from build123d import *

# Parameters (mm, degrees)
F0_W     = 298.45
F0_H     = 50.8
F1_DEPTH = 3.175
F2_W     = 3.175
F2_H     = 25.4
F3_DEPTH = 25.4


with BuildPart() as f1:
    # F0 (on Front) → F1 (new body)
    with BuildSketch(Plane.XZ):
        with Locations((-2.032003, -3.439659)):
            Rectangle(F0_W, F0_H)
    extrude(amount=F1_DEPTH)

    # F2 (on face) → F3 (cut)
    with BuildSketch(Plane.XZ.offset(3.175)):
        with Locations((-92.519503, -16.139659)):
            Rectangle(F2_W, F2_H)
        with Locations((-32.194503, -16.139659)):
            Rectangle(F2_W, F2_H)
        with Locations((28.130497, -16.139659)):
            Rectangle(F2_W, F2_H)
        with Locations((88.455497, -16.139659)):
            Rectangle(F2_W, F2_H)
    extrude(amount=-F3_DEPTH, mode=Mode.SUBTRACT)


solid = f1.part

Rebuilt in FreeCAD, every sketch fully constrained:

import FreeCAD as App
import Part
import Sketcher

V = App.Vector
Q = App.Units.Quantity

doc = App.newDocument("Part")
params = doc.addObject("Spreadsheet::Sheet", "Params")
for row, (alias, value) in enumerate([
    ("sketch1_height", "2 in"),
    ("sketch1_width", "11.75 in"),
    ("pad1_length", "0.125 in"),
    ("sketch2_height", "1 in"),
    ("sketch2_width", "0.125 in"),
    ("pocket1_length", "1 in"),
], start=1):
    params.set(f"A{row}", alias)
    params.set(f"B{row}", "=" + value)
    params.setAlias(f"B{row}", alias)

body = doc.addObject("PartDesign::Body", "Body")

sketch1 = doc.addObject("Sketcher::SketchObject", "Sketch")
body.addObject(sketch1)
sketch1.AttachmentSupport = (doc.XZ_Plane, [""])
sketch1.MapMode = "FlatFace"
sketch1.addGeometry([
    Part.LineSegment(V(-151, 22, 0), V(-151, -29, 0)),
    Part.LineSegment(V(-151, -29, 0), V(147, -29, 0)),
    Part.LineSegment(V(147, -29, 0), V(147, 22, 0)),
    Part.LineSegment(V(147, 22, 0), V(-151, 22, 0)),
], False)
sketch1.addConstraint([
    Sketcher.Constraint("Coincident", 0, 2, 1, 1),
    Sketcher.Constraint("Coincident", 1, 2, 2, 1),
    Sketcher.Constraint("Coincident", 2, 2, 3, 1),
    Sketcher.Constraint("Coincident", 3, 2, 0, 1),
    Sketcher.Constraint("Vertical", 0),
    Sketcher.Constraint("Horizontal", 1),
    Sketcher.Constraint("Vertical", 2),
    Sketcher.Constraint("Horizontal", 3),
    Sketcher.Constraint("DistanceY", 0, 2, 0, 1, Q("2 in")),
    Sketcher.Constraint("DistanceX", 1, 1, 1, 2, Q("11.75 in")),
    Sketcher.Constraint("DistanceX", 0, 2, -1, 1, Q("5.9550001 in")),
    Sketcher.Constraint("DistanceY", 0, 2, -1, 1, Q("28.839659 mm")),
])
sketch1.setExpression("Constraints[8]", "Params.sketch1_height")
sketch1.setExpression("Constraints[9]", "Params.sketch1_width")
pad1 = doc.addObject("PartDesign::Pad", "Pad")
body.addObject(pad1)
pad1.Profile = sketch1
pad1.setExpression("Length", "Params.pad1_length")

sketch2 = doc.addObject("Sketcher::SketchObject", "Sketch001")
body.addObject(sketch2)
sketch2.AttachmentSupport = (doc.XZ_Plane, [""])
sketch2.MapMode = "FlatFace"
sketch2.AttachmentOffset = App.Placement(V(0, 0, 0.125 * 25.4), App.Rotation())
sketch2.addGeometry([
    Part.LineSegment(V(-94.1, -3.4, 0), V(-94.1, -28.8, 0)),
    Part.LineSegment(V(-94.1, -28.8, 0), V(-90.9, -28.8, 0)),
    Part.LineSegment(V(-90.9, -28.8, 0), V(-90.9, -3.4, 0)),
    Part.LineSegment(V(-90.9, -3.4, 0), V(-94.1, -3.4, 0)),
    Part.LineSegment(V(-33.8, -3.4, 0), V(-33.8, -28.8, 0)),
    Part.LineSegment(V(-33.8, -28.8, 0), V(-30.6, -28.8, 0)),
    Part.LineSegment(V(-30.6, -28.8, 0), V(-30.6, -3.4, 0)),
    Part.LineSegment(V(-30.6, -3.4, 0), V(-33.8, -3.4, 0)),
    Part.LineSegment(V(26.5, -3.4, 0), V(26.5, -28.8, 0)),
    Part.LineSegment(V(26.5, -28.8, 0), V(29.7, -28.8, 0)),
    Part.LineSegment(V(29.7, -28.8, 0), V(29.7, -3.4, 0)),
    Part.LineSegment(V(29.7, -3.4, 0), V(26.5, -3.4, 0)),
    Part.LineSegment(V(86.9, -3.4, 0), V(86.9, -28.8, 0)),
    Part.LineSegment(V(86.9, -28.8, 0), V(90, -28.8, 0)),
    Part.LineSegment(V(90, -28.8, 0), V(90, -3.4, 0)),
    Part.LineSegment(V(90, -3.4, 0), V(86.9, -3.4, 0)),
], False)
sketch2.addConstraint([
    Sketcher.Constraint("Coincident", 0, 2, 1, 1),
    Sketcher.Constraint("Coincident", 1, 2, 2, 1),
    Sketcher.Constraint("Coincident", 2, 2, 3, 1),
    Sketcher.Constraint("Coincident", 3, 2, 0, 1),
    Sketcher.Constraint("Coincident", 4, 2, 5, 1),
    Sketcher.Constraint("Coincident", 5, 2, 6, 1),
    Sketcher.Constraint("Coincident", 6, 2, 7, 1),
    Sketcher.Constraint("Coincident", 7, 2, 4, 1),
    Sketcher.Constraint("Coincident", 8, 2, 9, 1),
    Sketcher.Constraint("Coincident", 9, 2, 10, 1),
    Sketcher.Constraint("Coincident", 10, 2, 11, 1),
    Sketcher.Constraint("Coincident", 11, 2, 8, 1),
    Sketcher.Constraint("Coincident", 12, 2, 13, 1),
    Sketcher.Constraint("Coincident", 13, 2, 14, 1),
    Sketcher.Constraint("Coincident", 14, 2, 15, 1),
    Sketcher.Constraint("Coincident", 15, 2, 12, 1),
    Sketcher.Constraint("Vertical", 0),
    Sketcher.Constraint("Horizontal", 1),
    Sketcher.Constraint("Vertical", 2),
    Sketcher.Constraint("Horizontal", 3),
    Sketcher.Constraint("Vertical", 4),
    Sketcher.Constraint("Horizontal", 5),
    Sketcher.Constraint("Vertical", 6),
    Sketcher.Constraint("Horizontal", 7),
    Sketcher.Constraint("Vertical", 8),
    Sketcher.Constraint("Horizontal", 9),
    Sketcher.Constraint("Vertical", 10),
    Sketcher.Constraint("Horizontal", 11),
    Sketcher.Constraint("Vertical", 12),
    Sketcher.Constraint("Horizontal", 13),
    Sketcher.Constraint("Vertical", 14),
    Sketcher.Constraint("Horizontal", 15),
    Sketcher.Constraint("Horizontal", 1, 2, 4, 2),
    Sketcher.Constraint("Horizontal", 3, 2, 6, 2),
    Sketcher.Constraint("Horizontal", 5, 2, 8, 2),
    Sketcher.Constraint("Horizontal", 7, 2, 10, 2),
    Sketcher.Constraint("Horizontal", 9, 2, 12, 2),
    Sketcher.Constraint("Horizontal", 11, 2, 14, 2),
    Sketcher.Constraint("Equal", 3, 5),
    Sketcher.Constraint("Equal", 7, 9),
    Sketcher.Constraint("Equal", 11, 13),
    Sketcher.Constraint("DistanceY", 0, 2, 0, 1, Q("1 in")),
    Sketcher.Constraint("DistanceX", 0, 2, 5, 2, Q("2.5 in")),
    Sketcher.Constraint("DistanceX", 4, 2, 9, 2, Q("2.5 in")),
    Sketcher.Constraint("DistanceX", 8, 2, 13, 2, Q("2.5 in")),
    Sketcher.Constraint("DistanceX", 1, 1, 1, 2, Q("0.125 in")),
    Sketcher.Constraint("DistanceX", 1, 2, -1, 1, Q("3.5800001 in")),
    Sketcher.Constraint("DistanceY", 0, 2, -1, 1, Q("28.839659 mm")),
])
sketch2.setExpression("Constraints[41]", "Params.sketch2_height")
sketch2.setExpression("Constraints[45]", "Params.sketch2_width")
pocket1 = doc.addObject("PartDesign::Pocket", "Pocket")
body.addObject(pocket1)
pocket1.Profile = sketch2
pocket1.setExpression("Length", "Params.pocket1_length")

doc.recompute()
